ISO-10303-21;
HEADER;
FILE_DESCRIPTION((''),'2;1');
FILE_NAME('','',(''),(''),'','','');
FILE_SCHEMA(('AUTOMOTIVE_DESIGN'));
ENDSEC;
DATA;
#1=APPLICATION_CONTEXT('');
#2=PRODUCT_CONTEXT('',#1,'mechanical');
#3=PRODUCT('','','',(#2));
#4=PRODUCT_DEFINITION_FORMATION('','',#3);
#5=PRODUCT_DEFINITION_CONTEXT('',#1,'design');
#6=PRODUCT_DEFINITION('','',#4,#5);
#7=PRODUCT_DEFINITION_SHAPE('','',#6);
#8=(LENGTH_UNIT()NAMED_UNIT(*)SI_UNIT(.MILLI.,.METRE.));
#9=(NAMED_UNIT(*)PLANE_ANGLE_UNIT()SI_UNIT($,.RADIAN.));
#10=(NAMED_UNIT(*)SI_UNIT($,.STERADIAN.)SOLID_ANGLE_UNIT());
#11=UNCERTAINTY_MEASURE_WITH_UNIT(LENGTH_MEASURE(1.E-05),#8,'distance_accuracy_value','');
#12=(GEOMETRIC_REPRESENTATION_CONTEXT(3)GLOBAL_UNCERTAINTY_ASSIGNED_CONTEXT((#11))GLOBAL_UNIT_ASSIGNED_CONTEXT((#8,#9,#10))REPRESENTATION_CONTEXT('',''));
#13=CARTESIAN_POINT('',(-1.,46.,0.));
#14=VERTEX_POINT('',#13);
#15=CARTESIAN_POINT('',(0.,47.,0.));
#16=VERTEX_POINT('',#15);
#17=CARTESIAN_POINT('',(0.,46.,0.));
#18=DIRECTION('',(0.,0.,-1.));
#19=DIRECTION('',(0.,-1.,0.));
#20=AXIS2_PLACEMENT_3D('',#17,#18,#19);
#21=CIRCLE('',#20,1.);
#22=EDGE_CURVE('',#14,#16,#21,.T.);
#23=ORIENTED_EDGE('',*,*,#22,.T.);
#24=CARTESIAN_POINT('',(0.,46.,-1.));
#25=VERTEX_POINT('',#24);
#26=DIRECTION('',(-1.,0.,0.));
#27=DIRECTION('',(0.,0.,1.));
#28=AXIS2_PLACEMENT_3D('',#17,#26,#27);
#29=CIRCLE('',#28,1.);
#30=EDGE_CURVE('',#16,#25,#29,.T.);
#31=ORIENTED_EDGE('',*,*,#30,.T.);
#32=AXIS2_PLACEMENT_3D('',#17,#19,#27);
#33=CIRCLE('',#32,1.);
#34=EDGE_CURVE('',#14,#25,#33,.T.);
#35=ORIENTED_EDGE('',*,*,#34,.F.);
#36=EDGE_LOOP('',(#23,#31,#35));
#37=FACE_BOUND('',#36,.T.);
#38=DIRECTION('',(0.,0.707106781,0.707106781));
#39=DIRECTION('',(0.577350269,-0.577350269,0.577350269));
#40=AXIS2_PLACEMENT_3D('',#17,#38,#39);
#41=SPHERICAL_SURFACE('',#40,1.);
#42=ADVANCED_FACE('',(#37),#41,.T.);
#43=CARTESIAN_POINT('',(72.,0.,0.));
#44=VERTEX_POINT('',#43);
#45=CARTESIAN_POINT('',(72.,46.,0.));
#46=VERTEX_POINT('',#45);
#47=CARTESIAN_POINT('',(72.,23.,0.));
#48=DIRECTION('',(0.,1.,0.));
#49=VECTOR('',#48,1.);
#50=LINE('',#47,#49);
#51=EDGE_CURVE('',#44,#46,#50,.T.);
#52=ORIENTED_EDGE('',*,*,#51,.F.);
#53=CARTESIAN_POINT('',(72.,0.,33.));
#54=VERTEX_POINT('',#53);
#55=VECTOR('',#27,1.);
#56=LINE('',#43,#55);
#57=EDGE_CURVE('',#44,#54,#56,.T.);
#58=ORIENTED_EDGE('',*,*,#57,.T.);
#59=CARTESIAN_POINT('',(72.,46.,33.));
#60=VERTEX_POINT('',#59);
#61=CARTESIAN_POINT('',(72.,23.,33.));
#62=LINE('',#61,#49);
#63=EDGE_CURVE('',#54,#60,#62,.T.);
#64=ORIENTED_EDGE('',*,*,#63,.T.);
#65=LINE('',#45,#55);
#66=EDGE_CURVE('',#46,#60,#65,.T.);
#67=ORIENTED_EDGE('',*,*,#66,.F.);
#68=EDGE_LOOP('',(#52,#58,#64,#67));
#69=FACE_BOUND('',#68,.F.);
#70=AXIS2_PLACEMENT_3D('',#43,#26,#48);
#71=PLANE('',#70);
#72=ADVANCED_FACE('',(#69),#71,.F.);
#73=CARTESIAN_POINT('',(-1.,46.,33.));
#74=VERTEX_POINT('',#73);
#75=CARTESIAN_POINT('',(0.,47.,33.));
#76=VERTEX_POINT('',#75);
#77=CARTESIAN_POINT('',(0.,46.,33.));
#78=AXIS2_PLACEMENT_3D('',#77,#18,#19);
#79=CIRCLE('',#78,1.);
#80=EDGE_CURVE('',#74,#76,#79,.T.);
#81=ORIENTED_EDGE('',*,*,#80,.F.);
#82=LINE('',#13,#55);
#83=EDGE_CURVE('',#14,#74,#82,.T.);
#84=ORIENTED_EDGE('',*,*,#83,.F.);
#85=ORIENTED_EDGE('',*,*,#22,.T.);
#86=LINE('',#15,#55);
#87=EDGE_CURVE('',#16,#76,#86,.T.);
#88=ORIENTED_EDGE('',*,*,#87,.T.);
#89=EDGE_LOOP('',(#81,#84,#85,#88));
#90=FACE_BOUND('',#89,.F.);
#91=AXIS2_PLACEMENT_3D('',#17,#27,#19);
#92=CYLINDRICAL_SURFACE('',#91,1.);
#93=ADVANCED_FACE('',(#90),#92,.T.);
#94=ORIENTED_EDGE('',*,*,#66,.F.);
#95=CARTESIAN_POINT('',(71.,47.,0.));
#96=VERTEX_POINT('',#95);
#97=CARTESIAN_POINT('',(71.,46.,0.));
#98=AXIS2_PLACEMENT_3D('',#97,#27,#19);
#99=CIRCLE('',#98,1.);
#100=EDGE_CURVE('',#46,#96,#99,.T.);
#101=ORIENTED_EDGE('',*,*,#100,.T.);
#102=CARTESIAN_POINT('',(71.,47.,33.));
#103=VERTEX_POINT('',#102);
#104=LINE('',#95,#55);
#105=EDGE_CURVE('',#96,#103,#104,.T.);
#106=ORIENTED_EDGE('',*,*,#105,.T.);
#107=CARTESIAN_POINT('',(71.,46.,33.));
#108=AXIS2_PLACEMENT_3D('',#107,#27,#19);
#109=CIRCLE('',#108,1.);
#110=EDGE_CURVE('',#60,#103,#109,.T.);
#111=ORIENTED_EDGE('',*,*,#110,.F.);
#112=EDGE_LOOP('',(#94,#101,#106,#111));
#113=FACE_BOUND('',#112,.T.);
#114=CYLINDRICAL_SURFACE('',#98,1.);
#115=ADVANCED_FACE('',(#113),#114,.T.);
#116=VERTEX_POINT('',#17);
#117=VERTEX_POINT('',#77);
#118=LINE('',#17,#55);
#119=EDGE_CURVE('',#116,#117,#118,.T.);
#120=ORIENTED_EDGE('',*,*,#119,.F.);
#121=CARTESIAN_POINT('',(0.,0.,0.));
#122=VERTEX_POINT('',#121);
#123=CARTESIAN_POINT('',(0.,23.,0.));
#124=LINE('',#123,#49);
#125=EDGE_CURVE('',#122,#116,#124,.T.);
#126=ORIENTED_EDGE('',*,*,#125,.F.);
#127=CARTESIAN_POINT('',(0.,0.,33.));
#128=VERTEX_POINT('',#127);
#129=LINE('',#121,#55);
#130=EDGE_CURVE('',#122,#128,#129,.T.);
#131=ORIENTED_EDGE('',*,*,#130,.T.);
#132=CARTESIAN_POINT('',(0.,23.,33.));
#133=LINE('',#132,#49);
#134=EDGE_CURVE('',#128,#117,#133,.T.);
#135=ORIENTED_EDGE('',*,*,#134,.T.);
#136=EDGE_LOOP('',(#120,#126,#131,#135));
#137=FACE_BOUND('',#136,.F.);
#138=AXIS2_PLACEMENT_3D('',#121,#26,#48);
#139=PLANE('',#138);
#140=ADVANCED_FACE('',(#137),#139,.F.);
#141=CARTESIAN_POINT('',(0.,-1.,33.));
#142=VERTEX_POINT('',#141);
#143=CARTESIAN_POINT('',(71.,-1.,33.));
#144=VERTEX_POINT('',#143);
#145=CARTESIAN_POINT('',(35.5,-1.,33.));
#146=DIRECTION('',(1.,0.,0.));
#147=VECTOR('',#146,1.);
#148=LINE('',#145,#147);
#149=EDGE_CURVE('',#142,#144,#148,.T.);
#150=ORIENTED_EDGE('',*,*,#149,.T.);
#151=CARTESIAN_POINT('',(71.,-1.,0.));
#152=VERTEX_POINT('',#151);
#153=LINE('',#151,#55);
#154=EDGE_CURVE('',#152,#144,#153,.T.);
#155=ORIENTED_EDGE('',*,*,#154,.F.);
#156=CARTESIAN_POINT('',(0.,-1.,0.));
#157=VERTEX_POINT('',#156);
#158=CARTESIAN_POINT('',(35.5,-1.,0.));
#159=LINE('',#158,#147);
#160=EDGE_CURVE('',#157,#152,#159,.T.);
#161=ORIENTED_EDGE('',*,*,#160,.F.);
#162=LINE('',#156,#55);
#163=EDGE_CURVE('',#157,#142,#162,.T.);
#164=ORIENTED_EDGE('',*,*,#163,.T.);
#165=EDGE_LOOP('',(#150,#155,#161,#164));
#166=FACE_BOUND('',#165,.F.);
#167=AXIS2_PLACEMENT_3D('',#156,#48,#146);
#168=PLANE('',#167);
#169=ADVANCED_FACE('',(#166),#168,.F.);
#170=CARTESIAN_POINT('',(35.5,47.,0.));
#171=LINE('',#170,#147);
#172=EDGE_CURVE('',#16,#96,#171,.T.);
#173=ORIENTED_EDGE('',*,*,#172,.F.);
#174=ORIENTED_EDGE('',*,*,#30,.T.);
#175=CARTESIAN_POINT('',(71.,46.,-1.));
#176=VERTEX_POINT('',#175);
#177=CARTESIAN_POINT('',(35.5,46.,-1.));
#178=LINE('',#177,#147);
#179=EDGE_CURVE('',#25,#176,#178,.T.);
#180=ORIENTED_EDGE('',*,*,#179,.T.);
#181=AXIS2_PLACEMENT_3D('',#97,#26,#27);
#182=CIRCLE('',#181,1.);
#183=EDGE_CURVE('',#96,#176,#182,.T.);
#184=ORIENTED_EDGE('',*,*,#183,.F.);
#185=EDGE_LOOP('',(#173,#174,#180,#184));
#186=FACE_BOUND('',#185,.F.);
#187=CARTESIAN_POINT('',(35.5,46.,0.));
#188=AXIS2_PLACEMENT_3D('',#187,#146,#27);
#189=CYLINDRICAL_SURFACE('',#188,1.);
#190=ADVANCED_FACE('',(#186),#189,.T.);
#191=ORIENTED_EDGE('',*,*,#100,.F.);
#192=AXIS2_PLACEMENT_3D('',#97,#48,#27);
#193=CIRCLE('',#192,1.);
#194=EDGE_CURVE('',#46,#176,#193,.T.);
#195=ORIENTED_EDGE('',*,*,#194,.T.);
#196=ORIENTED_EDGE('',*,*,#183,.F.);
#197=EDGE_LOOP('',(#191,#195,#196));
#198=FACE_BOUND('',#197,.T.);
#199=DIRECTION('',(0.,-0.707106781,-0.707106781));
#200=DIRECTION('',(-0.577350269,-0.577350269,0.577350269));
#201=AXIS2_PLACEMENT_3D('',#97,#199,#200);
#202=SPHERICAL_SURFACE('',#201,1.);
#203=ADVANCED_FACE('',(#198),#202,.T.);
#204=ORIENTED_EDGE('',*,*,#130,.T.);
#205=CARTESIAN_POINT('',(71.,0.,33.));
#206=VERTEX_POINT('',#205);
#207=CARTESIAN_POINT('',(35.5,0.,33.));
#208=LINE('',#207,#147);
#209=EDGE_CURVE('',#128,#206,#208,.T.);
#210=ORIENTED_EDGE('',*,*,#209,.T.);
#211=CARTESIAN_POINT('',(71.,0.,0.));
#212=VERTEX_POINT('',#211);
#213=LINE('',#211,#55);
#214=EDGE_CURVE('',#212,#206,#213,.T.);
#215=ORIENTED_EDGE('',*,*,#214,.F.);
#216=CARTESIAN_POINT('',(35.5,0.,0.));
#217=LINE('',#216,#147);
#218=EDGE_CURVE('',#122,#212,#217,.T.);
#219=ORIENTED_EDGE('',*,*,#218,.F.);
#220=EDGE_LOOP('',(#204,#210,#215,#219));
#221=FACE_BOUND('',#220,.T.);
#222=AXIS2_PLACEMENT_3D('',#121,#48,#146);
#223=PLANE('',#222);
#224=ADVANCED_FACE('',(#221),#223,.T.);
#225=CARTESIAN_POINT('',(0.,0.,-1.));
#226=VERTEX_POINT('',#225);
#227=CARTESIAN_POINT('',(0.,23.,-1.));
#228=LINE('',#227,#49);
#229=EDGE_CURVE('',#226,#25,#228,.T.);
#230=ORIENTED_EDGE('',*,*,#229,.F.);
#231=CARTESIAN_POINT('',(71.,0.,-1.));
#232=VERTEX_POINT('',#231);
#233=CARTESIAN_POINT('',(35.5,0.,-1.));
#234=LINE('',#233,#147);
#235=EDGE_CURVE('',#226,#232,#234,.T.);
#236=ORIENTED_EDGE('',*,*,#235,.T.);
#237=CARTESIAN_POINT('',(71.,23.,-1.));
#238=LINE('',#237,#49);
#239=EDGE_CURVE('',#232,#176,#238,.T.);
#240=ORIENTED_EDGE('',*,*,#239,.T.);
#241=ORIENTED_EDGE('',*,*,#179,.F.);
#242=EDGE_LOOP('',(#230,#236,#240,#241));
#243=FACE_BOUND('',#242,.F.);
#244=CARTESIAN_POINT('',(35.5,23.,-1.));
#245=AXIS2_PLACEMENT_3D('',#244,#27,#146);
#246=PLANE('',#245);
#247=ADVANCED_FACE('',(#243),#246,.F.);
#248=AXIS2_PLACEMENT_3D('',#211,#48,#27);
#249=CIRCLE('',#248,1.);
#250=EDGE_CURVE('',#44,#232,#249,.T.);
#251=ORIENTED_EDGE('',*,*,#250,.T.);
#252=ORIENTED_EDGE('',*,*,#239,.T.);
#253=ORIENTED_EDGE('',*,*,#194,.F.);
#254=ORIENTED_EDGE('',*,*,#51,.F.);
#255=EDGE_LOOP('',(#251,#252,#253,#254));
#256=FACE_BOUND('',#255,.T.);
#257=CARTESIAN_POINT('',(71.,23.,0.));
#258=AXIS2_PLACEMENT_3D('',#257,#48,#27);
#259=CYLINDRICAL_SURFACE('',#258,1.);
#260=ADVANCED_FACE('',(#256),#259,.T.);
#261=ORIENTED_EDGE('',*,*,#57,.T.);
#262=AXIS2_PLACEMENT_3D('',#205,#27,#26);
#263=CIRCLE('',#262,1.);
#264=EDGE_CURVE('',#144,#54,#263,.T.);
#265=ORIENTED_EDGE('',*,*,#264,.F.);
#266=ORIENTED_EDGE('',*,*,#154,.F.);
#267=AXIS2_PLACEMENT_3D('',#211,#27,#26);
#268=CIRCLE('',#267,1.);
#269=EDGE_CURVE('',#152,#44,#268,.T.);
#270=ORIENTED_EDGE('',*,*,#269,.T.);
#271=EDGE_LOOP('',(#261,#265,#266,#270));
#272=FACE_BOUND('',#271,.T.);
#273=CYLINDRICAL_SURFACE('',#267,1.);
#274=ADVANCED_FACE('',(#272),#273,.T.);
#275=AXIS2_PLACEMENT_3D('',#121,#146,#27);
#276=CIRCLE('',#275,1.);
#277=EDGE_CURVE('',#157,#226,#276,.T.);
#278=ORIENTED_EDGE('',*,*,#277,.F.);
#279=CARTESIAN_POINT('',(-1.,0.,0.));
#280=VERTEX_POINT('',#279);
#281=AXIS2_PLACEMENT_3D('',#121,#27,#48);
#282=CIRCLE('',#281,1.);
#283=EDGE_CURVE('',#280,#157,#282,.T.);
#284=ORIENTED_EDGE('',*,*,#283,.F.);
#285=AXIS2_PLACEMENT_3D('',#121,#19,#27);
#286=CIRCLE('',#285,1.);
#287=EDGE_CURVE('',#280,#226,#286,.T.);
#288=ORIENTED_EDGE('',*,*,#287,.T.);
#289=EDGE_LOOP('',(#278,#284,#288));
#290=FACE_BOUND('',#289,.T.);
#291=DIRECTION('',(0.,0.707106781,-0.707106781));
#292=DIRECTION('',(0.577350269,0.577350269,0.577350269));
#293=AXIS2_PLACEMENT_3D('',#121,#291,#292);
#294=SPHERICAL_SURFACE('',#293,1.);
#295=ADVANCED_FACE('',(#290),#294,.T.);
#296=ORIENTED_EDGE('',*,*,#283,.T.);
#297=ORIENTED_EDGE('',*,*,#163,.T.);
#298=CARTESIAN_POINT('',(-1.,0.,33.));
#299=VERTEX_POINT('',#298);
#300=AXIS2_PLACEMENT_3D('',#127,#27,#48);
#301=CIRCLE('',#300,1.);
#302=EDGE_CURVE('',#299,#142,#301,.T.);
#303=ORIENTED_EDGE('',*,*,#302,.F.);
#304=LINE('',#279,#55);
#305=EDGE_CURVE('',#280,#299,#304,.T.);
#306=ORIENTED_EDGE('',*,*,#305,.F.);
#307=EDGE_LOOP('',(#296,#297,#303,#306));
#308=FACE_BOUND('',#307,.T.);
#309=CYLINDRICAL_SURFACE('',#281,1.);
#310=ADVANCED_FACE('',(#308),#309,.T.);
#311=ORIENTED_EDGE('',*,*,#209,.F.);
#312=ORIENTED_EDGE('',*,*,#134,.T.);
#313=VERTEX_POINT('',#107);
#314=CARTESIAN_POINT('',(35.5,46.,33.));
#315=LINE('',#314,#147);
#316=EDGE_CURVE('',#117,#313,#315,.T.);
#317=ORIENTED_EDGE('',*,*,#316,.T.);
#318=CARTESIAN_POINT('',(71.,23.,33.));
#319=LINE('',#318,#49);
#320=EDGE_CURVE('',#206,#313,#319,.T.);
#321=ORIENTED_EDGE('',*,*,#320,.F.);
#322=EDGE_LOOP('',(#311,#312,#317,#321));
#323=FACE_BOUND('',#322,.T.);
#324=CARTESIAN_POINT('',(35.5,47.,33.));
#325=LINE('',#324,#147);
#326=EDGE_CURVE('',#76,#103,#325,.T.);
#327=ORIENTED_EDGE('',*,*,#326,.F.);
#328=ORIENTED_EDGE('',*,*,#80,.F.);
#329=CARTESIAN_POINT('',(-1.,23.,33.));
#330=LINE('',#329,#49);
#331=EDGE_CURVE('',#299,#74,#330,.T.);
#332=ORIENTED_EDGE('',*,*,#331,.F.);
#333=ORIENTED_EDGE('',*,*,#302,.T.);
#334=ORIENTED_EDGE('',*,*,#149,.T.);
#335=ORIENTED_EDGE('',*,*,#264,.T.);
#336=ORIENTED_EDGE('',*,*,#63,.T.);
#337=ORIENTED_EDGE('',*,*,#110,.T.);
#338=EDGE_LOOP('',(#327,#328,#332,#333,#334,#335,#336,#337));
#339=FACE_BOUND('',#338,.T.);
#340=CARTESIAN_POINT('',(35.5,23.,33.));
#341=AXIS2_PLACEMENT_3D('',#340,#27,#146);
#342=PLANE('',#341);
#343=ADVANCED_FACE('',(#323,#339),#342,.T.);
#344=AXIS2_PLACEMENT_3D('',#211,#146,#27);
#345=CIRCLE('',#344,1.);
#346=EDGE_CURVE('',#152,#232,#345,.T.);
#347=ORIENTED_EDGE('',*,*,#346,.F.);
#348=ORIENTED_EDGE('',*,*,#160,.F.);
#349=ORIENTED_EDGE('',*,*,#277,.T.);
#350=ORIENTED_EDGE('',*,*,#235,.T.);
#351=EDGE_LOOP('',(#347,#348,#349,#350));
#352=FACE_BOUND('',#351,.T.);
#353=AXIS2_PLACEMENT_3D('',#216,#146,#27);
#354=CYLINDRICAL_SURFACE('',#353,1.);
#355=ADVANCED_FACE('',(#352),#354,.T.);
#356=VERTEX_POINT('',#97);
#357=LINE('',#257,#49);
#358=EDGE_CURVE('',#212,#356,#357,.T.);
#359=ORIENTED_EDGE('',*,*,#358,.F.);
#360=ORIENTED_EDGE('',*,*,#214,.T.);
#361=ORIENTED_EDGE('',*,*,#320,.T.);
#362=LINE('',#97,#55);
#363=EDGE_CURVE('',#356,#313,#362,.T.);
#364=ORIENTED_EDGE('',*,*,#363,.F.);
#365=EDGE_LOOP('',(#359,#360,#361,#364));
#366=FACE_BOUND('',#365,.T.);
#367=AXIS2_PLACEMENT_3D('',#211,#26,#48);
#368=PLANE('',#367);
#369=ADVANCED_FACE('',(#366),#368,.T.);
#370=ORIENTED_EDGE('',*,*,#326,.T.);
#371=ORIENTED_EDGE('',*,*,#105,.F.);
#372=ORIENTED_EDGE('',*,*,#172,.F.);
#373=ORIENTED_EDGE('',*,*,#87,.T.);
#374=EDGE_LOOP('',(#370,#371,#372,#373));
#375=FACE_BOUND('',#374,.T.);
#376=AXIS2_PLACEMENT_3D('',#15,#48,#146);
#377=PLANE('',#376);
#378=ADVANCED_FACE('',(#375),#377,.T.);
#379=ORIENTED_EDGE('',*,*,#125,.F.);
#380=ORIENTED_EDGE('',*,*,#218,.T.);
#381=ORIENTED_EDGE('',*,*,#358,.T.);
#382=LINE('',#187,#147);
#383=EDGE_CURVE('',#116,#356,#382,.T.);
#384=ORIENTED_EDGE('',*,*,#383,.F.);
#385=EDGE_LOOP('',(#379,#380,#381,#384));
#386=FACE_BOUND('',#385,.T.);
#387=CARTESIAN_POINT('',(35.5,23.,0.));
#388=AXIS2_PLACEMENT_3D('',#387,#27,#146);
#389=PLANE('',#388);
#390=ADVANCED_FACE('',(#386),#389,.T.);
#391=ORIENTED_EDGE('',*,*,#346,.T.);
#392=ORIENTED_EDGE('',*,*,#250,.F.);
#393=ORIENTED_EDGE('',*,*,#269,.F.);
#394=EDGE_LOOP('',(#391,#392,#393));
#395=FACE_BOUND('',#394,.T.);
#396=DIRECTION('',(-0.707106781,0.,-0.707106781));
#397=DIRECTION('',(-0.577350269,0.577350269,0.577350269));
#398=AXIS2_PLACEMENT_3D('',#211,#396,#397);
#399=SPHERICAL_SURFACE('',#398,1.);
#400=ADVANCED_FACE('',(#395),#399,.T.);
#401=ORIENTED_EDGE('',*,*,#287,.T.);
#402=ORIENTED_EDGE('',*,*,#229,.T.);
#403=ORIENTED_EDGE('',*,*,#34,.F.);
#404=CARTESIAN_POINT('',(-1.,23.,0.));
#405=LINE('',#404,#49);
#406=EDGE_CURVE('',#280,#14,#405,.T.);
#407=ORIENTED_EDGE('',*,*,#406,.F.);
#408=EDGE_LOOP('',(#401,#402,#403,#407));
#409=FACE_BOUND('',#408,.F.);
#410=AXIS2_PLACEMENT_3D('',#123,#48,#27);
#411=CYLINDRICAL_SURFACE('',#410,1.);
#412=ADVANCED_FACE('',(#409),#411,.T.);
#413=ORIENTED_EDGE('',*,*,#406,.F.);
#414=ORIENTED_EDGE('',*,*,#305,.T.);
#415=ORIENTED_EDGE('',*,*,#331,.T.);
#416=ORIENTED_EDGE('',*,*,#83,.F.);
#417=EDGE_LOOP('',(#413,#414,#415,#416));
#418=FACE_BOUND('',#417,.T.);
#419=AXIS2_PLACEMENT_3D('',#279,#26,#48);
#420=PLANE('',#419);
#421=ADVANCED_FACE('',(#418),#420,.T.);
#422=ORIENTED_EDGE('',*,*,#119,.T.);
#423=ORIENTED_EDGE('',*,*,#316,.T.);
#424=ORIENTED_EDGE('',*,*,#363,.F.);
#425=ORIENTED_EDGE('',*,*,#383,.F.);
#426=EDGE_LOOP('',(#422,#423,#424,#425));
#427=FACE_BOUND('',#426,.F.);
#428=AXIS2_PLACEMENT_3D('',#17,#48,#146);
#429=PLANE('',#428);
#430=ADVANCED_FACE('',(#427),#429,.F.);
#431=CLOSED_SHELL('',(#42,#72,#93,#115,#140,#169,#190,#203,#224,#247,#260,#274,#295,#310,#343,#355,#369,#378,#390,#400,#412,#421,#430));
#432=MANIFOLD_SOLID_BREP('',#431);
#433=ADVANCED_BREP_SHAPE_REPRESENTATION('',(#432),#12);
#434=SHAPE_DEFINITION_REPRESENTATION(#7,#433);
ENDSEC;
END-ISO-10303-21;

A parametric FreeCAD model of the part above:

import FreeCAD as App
import Part
import Sketcher

V = App.Vector


def faces_at(feature, points):
    """Names of the faces that lie closest to the given points."""
    faces = feature.Shape.Faces
    near = lambda p: min(range(len(faces)), key=lambda i: faces[i].distToShape(Part.Vertex(*p))[0])
    return sorted({f"Face{near(p) + 1}" for p in points})


def add_polygon(sketch, points):
    """Adds a closed chain of lines whose ends are joined by coincident constraints."""
    first, n = sketch.GeometryCount, len(points)
    for a, b in zip(points, points[1:] + points[:1]):
        sketch.addGeometry(Part.LineSegment(App.Vector(*a, 0), App.Vector(*b, 0)), False)
    for i in range(n):
        sketch.addConstraint(Sketcher.Constraint("Coincident", first + i, 2, first + (i + 1) % n, 1))

doc = App.newDocument("Part")
body = doc.addObject("PartDesign::Body", "Body")

sketch1 = body.newObject("Sketcher::SketchObject", "Sketch")
sketch1.AttachmentSupport = (doc.getObject("XY_Plane"), [""])
sketch1.MapMode = "FlatFace"
add_polygon(sketch1, [(0, 46), (0, 0), (71, 0), (71, 46)])
sketch1.addConstraint([
    Sketcher.Constraint("Vertical", 0),
    Sketcher.Constraint("Horizontal", 1),
    Sketcher.Constraint("Vertical", 2),
    Sketcher.Constraint("Horizontal", 3),
    Sketcher.Constraint("Coincident", 0, 2, -1, 1),
    Sketcher.Constraint("DistanceX", 1, 1, 1, 2, 71.0),
    Sketcher.Constraint("DistanceY", 0, 2, 0, 1, 46.0),
])
pad1 = body.newObject("PartDesign::Pad", "Pad")
pad1.Profile = sketch1
pad1.Length = 33
doc.recompute()

thickness = body.newObject("PartDesign::Thickness", "Thickness")
thickness.Base = (pad1, faces_at(pad1, [(35.5, 23, 33)]))
thickness.Value = 1
thickness.Reversed = False
thickness.Join = "Arc"

doc.recompute()
